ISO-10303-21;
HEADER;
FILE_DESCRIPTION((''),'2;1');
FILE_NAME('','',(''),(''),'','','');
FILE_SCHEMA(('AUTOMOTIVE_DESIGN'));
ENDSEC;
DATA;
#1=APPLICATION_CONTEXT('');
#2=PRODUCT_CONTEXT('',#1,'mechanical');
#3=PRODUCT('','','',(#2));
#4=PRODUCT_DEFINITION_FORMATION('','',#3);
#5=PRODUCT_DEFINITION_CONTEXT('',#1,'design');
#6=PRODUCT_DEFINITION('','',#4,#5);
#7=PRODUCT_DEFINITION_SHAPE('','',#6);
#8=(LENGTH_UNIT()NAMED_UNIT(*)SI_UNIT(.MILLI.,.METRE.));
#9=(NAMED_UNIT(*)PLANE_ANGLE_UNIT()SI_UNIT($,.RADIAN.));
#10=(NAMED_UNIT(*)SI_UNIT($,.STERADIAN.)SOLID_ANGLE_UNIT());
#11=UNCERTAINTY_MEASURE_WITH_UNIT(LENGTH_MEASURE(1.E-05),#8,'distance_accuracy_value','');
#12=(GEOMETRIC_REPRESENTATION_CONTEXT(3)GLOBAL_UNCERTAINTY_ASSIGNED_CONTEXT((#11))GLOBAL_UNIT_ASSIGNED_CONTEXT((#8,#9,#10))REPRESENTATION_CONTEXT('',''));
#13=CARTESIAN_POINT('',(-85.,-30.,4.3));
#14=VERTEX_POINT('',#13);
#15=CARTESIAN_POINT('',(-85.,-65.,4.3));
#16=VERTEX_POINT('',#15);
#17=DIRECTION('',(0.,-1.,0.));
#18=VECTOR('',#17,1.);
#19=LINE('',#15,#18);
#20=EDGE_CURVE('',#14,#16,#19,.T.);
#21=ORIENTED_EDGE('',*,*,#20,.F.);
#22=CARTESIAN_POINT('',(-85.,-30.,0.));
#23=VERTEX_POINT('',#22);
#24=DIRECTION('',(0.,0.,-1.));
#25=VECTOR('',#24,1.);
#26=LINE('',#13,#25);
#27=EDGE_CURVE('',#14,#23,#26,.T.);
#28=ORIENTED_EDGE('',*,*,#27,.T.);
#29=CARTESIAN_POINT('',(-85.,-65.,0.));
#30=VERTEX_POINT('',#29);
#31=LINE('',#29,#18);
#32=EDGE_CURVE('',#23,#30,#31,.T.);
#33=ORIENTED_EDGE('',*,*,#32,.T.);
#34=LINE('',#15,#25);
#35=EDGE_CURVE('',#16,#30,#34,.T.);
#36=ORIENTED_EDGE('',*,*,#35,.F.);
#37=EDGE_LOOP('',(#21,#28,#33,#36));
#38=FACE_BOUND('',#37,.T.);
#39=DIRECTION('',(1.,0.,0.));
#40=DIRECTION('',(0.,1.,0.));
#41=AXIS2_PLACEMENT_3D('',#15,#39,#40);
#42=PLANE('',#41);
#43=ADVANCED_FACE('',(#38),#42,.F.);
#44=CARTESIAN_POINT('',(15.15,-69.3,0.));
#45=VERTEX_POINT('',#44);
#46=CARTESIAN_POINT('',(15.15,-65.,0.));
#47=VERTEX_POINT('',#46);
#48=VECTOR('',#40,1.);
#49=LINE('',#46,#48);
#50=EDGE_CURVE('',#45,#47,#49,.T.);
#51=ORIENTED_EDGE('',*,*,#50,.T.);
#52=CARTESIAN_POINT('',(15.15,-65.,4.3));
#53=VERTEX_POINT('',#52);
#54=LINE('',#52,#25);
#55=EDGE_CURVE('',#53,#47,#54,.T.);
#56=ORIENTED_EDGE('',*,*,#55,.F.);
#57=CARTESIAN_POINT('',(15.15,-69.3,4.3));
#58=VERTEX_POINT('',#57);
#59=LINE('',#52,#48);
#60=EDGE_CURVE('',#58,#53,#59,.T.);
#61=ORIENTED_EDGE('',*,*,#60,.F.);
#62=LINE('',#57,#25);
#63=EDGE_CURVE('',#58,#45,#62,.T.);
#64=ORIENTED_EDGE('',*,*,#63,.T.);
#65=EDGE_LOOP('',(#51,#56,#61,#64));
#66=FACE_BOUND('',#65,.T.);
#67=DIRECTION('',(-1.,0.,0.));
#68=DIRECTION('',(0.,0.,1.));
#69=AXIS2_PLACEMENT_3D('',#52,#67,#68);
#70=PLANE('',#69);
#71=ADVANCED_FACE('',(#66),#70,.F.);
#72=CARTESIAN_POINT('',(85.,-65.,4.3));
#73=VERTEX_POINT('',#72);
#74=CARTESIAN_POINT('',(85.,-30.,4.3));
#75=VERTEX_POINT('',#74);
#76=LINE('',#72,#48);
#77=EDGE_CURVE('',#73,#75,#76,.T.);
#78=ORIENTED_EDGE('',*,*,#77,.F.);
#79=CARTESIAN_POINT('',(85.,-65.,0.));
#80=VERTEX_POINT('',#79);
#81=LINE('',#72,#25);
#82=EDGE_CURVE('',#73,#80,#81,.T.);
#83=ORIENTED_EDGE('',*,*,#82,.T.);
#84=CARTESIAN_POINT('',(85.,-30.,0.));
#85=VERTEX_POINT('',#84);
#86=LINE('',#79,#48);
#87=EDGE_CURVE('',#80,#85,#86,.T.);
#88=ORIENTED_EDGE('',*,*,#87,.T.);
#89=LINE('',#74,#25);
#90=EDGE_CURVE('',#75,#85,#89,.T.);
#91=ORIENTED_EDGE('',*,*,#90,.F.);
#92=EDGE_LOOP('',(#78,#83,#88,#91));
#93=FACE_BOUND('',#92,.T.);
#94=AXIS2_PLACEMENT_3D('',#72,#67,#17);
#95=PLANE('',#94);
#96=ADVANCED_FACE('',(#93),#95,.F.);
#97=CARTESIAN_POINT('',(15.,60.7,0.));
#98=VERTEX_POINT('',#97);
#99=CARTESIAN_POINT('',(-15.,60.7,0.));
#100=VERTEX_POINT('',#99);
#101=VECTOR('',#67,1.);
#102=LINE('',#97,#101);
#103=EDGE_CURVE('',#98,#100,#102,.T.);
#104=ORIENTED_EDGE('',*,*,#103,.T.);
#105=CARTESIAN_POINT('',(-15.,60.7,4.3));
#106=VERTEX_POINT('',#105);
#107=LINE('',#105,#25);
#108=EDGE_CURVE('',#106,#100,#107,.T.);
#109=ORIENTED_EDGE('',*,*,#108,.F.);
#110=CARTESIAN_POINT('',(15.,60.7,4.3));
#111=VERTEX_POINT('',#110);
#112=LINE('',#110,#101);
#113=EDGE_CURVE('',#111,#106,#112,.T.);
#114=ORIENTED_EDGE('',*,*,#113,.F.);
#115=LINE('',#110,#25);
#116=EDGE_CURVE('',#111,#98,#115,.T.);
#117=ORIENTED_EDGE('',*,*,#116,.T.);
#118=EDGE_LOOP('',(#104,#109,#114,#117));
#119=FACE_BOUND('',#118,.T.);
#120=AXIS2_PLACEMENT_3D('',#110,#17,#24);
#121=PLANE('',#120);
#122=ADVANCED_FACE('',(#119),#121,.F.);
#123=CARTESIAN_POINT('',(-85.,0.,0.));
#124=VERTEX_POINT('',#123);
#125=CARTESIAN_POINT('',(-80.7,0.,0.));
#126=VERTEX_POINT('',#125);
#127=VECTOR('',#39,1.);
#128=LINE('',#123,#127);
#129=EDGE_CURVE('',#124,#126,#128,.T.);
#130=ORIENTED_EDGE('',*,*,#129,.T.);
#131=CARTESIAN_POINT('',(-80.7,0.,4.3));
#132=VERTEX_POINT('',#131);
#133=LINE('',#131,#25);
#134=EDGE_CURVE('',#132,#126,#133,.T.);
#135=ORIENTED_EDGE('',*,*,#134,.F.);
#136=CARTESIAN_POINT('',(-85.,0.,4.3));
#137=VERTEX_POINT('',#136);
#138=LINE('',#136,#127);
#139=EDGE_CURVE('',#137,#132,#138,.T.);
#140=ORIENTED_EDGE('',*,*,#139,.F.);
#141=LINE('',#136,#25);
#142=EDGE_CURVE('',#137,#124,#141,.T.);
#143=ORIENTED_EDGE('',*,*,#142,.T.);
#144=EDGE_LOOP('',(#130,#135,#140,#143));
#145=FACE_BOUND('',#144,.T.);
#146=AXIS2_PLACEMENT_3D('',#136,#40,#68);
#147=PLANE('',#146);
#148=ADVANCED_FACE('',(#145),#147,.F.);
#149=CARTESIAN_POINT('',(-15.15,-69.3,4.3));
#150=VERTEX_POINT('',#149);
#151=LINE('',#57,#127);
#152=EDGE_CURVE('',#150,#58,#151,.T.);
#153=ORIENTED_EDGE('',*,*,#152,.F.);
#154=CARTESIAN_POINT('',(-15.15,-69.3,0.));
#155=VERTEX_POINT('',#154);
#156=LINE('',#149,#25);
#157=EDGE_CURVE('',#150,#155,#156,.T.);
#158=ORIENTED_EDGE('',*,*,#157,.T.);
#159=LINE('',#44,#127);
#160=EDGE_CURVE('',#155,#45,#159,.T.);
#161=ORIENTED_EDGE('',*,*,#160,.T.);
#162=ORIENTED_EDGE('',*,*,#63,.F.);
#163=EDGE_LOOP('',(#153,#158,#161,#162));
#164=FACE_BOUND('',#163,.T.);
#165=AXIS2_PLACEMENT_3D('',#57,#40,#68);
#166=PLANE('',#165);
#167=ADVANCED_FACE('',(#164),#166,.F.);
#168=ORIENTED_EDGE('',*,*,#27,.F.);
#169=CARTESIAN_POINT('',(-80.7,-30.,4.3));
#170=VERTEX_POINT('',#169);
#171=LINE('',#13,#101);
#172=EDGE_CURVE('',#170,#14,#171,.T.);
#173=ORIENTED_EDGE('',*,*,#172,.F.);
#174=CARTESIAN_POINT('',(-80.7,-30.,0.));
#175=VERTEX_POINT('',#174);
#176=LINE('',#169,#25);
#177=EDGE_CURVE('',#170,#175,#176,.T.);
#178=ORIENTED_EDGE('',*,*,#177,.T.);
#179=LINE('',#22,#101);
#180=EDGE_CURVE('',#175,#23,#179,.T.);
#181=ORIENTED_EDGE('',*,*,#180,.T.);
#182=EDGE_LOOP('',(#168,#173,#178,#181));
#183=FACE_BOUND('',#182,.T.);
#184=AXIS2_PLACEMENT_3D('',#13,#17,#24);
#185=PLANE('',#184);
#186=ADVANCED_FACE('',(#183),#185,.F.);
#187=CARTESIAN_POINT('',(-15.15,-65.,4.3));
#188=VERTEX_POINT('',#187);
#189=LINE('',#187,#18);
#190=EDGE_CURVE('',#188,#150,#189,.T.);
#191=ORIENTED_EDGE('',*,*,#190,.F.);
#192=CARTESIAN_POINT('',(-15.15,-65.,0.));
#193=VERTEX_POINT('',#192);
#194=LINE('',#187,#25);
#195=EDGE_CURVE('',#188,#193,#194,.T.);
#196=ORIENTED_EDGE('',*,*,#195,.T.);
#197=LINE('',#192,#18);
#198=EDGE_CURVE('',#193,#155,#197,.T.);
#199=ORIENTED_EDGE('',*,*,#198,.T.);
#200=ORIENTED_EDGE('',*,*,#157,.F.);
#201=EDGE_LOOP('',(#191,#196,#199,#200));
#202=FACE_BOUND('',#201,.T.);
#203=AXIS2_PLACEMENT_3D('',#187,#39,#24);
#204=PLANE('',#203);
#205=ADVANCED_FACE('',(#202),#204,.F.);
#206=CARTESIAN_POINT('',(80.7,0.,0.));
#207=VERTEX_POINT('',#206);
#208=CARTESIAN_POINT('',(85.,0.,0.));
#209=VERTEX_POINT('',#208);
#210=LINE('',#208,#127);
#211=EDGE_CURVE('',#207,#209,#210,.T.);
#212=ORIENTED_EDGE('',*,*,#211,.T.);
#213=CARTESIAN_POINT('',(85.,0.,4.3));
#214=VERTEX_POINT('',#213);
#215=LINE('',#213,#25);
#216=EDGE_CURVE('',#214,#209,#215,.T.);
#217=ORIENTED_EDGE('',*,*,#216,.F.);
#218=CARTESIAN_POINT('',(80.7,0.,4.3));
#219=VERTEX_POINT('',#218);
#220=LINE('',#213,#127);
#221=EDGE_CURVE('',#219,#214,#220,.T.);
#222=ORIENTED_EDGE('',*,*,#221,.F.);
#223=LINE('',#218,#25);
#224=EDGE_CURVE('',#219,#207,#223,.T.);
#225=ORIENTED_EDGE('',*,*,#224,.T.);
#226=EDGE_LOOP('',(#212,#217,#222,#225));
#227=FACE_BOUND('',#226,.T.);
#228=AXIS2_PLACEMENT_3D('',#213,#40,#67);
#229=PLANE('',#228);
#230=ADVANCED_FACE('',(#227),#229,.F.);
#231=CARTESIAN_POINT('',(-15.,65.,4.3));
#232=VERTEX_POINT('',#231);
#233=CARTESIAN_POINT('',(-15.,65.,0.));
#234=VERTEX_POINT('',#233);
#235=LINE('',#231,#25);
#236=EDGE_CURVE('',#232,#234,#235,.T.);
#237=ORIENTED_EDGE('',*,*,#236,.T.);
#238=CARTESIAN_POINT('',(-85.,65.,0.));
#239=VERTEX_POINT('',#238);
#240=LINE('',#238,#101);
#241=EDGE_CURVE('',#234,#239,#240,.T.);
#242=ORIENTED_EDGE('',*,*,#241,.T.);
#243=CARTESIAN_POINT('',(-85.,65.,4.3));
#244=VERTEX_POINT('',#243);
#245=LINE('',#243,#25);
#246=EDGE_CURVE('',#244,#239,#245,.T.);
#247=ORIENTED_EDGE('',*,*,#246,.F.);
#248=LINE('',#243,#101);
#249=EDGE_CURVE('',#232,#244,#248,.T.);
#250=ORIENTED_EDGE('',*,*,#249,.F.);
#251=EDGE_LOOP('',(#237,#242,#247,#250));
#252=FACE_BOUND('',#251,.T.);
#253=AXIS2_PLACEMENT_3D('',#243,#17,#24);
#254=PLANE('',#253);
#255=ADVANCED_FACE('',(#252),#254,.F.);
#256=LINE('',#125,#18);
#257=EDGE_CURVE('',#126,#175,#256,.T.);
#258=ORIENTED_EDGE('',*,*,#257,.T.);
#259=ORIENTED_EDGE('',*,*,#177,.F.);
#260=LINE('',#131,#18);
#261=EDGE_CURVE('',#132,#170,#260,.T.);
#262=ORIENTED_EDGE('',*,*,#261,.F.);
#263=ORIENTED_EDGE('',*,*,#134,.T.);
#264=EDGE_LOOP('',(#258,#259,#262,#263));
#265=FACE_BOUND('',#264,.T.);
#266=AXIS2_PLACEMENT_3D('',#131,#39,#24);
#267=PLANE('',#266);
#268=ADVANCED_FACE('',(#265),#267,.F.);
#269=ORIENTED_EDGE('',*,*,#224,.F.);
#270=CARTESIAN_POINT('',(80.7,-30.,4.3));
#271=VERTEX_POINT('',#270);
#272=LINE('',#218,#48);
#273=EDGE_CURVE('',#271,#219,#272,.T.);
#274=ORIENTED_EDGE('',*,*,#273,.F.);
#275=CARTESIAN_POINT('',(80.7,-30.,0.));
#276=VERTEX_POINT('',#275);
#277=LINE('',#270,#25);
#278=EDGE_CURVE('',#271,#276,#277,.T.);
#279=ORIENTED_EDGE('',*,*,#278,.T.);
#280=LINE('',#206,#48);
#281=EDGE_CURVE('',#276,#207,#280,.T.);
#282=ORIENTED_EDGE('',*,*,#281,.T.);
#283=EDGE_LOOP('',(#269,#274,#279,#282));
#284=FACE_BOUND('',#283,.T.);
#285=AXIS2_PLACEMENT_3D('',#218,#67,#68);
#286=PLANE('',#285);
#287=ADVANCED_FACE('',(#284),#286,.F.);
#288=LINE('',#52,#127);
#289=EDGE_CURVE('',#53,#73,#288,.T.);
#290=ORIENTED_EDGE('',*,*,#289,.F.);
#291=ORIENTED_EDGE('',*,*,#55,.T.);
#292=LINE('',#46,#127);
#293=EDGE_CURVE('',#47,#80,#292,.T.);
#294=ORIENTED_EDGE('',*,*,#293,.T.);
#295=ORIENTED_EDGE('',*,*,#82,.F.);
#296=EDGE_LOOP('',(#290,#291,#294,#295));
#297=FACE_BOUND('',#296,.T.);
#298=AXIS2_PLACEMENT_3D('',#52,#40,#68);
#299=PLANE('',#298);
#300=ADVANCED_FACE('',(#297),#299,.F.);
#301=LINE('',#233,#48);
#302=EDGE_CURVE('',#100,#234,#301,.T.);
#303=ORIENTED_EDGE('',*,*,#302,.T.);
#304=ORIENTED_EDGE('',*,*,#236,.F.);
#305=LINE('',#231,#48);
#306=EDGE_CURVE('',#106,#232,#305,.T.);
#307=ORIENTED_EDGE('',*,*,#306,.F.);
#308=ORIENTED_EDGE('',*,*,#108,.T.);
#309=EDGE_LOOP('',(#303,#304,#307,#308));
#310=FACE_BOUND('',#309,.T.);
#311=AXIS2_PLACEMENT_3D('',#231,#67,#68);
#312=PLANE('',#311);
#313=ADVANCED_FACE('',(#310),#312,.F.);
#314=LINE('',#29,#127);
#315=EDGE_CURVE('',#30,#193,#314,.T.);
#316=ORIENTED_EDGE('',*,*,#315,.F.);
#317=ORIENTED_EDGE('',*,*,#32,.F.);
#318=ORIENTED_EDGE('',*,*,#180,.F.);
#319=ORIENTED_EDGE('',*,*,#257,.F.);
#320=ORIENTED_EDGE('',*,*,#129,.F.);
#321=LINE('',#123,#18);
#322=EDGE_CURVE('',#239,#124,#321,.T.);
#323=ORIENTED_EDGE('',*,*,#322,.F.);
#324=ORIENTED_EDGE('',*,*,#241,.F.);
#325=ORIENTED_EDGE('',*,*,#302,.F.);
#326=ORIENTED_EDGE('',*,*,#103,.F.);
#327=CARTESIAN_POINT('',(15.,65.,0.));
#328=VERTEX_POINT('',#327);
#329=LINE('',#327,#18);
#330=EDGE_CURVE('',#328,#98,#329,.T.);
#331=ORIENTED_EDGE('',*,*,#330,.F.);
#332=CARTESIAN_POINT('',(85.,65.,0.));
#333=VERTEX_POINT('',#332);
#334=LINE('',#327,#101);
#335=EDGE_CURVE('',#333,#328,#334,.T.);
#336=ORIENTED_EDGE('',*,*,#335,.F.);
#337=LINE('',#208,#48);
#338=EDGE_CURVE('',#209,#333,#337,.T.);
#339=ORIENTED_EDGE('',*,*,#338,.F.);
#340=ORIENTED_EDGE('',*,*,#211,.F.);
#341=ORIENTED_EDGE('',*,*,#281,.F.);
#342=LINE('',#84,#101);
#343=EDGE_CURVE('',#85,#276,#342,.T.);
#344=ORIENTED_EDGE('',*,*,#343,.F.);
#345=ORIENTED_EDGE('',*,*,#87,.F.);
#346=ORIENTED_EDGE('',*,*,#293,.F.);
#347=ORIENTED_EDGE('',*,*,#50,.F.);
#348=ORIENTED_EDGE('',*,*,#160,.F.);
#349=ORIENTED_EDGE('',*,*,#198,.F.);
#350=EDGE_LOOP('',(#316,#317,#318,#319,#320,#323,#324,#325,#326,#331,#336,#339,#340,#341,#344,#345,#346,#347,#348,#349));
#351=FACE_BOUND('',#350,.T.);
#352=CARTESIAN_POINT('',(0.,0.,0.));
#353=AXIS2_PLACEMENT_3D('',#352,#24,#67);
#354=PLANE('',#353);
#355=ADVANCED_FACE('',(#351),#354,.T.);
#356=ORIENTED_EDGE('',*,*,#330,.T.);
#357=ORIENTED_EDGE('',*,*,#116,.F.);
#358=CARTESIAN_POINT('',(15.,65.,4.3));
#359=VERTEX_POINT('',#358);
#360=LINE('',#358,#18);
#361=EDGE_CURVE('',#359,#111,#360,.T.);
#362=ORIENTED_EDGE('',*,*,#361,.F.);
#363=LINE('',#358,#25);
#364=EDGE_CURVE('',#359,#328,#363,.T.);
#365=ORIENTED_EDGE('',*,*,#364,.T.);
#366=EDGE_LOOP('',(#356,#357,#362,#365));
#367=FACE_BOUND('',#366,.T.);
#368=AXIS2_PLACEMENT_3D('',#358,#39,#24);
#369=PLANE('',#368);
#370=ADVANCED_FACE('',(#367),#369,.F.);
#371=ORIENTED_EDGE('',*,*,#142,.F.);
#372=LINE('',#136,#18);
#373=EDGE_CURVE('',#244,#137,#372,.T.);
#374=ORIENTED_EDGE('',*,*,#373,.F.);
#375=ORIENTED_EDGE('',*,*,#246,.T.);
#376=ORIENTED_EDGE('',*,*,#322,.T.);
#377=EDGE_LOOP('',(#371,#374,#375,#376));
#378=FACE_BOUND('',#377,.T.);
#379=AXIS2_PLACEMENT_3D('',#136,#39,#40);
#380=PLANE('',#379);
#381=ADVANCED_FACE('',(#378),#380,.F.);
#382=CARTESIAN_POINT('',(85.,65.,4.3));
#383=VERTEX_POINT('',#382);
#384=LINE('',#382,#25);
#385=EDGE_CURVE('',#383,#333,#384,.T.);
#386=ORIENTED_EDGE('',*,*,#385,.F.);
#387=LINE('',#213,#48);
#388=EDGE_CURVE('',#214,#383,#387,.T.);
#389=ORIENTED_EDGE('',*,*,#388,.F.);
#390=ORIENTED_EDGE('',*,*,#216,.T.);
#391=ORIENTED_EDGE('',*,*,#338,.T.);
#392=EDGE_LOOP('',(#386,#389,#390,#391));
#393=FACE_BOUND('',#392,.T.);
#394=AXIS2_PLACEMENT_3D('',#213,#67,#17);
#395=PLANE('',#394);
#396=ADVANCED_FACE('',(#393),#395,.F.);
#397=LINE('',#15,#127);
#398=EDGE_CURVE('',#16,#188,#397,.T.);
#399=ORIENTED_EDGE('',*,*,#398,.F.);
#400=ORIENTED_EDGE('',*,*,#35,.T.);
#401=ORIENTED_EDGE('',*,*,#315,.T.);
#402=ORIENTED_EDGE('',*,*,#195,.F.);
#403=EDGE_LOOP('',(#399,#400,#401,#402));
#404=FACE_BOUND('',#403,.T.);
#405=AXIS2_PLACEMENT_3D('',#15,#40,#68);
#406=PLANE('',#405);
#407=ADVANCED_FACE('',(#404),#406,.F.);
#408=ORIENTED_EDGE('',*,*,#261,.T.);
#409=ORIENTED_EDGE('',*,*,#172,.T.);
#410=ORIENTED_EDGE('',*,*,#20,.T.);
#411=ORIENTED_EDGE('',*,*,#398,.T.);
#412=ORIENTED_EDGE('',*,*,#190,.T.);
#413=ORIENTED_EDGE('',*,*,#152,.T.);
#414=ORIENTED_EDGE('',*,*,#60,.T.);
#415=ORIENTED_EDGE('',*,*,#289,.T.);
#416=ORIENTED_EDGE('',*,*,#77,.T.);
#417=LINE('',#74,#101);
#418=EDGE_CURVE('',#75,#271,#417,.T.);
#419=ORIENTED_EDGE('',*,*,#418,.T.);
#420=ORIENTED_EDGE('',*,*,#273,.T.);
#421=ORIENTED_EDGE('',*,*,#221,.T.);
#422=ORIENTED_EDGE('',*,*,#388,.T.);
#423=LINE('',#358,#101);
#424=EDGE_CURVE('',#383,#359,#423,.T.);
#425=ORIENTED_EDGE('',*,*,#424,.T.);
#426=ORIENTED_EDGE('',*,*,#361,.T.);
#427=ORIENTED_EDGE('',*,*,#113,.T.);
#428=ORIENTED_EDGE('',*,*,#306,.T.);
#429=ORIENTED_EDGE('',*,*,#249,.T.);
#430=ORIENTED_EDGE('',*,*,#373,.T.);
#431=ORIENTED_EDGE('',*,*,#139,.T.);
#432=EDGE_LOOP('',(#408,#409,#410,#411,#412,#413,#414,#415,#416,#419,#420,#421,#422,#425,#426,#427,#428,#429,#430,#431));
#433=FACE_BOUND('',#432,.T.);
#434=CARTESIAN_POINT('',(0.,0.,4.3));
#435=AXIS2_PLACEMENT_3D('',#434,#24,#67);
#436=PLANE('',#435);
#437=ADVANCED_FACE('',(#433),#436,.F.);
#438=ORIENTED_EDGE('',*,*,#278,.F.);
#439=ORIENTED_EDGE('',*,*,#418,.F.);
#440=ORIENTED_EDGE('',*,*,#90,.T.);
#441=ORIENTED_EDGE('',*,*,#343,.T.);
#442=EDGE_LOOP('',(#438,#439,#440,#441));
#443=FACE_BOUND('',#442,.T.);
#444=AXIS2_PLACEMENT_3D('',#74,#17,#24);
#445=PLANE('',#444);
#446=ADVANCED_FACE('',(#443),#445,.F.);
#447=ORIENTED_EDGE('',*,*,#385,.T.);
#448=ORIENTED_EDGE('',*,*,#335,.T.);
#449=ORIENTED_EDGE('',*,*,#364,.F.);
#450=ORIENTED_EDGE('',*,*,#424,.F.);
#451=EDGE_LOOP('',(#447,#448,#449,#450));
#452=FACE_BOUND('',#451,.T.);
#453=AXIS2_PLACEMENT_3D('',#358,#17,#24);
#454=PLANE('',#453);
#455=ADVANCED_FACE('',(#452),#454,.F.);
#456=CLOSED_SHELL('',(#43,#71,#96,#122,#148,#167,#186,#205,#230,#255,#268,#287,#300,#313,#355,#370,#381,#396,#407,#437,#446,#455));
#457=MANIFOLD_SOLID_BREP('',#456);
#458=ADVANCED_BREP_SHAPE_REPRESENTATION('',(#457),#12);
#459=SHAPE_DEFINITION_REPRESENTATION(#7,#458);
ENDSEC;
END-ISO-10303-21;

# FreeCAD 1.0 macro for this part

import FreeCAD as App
import Part
import Sketcher

V = App.Vector
Q = App.Units.Quantity

doc = App.newDocument("Part")
body = doc.addObject("PartDesign::Body", "Body")

sketch1 = body.newObject("Sketcher::SketchObject", "Sketch")
sketch1.AttachmentSupport = (doc.getObject("XY_Plane"), [""])
sketch1.MapMode = "FlatFace"
sketch1.addGeometry(Part.LineSegment(V(85, 65, 0), V(15, 65, 0)), False)
sketch1.addGeometry(Part.LineSegment(V(15, 65, 0), V(15, 60.7, 0)), False)
sketch1.addGeometry(Part.LineSegment(V(15, 60.7, 0), V(-15, 60.7, 0)), False)
sketch1.addGeometry(Part.LineSegment(V(-15, 60.7, 0), V(-15, 65, 0)), False)
sketch1.addGeometry(Part.LineSegment(V(-15, 65, 0), V(-85, 65, 0)), False)
sketch1.addGeometry(Part.LineSegment(V(-85, 65, 0), V(-85, 0, 0)), False)
sketch1.addGeometry(Part.LineSegment(V(-85, 0, 0), V(-80.7, 0, 0)), False)
sketch1.addGeometry(Part.LineSegment(V(-80.7, 0, 0), V(-80.7, -30, 0)), False)
sketch1.addGeometry(Part.LineSegment(V(-80.7, -30, 0), V(-85, -30, 0)), False)
sketch1.addGeometry(Part.LineSegment(V(-85, -30, 0), V(-85, -65, 0)), False)
sketch1.addGeometry(Part.LineSegment(V(-85, -65, 0), V(-15.15, -65, 0)), False)
sketch1.addGeometry(Part.LineSegment(V(-15.15, -65, 0), V(-15.15, -69.3, 0)), False)
sketch1.addGeometry(Part.LineSegment(V(-15.15, -69.3, 0), V(15.15, -69.3, 0)), False)
sketch1.addGeometry(Part.LineSegment(V(15.15, -69.3, 0), V(15.15, -65, 0)), False)
sketch1.addGeometry(Part.LineSegment(V(15.15, -65, 0), V(85, -65, 0)), False)
sketch1.addGeometry(Part.LineSegment(V(85, -65, 0), V(85, -30, 0)), False)
sketch1.addGeometry(Part.LineSegment(V(85, -30, 0), V(80.7, -30, 0)), False)
sketch1.addGeometry(Part.LineSegment(V(80.7, -30, 0), V(80.7, 0, 0)), False)
sketch1.addGeometry(Part.LineSegment(V(80.7, 0, 0), V(85, 0, 0)), False)
sketch1.addGeometry(Part.LineSegment(V(85, 0, 0), V(85, 65, 0)), False)
sketch1.addConstraint(Sketcher.Constraint("Coincident", 0, 2, 1, 1))
sketch1.addConstraint(Sketcher.Constraint("Coincident", 1, 2, 2, 1))
sketch1.addConstraint(Sketcher.Constraint("Coincident", 2, 2, 3, 1))
sketch1.addConstraint(Sketcher.Constraint("Coincident", 3, 2, 4, 1))
sketch1.addConstraint(Sketcher.Constraint("Coincident", 4, 2, 5, 1))
sketch1.addConstraint(Sketcher.Constraint("Coincident", 5, 2, 6, 1))
sketch1.addConstraint(Sketcher.Constraint("Coincident", 6, 2, 7, 1))
sketch1.addConstraint(Sketcher.Constraint("Coincident", 7, 2, 8, 1))
sketch1.addConstraint(Sketcher.Constraint("Coincident", 8, 2, 9, 1))
sketch1.addConstraint(Sketcher.Constraint("Coincident", 9, 2, 10, 1))
sketch1.addConstraint(Sketcher.Constraint("Coincident", 10, 2, 11, 1))
sketch1.addConstraint(Sketcher.Constraint("Coincident", 11, 2, 12, 1))
sketch1.addConstraint(Sketcher.Constraint("Coincident", 12, 2, 13, 1))
sketch1.addConstraint(Sketcher.Constraint("Coincident", 13, 2, 14, 1))
sketch1.addConstraint(Sketcher.Constraint("Coincident", 14, 2, 15, 1))
sketch1.addConstraint(Sketcher.Constraint("Coincident", 15, 2, 16, 1))
sketch1.addConstraint(Sketcher.Constraint("Coincident", 16, 2, 17, 1))
sketch1.addConstraint(Sketcher.Constraint("Coincident", 17, 2, 18, 1))
sketch1.addConstraint(Sketcher.Constraint("Coincident", 18, 2, 19, 1))
sketch1.addConstraint(Sketcher.Constraint("Coincident", 19, 2, 0, 1))
sketch1.addConstraint(Sketcher.Constraint("Horizontal", 0))
sketch1.addConstraint(Sketcher.Constraint("Vertical", 1))
sketch1.addConstraint(Sketcher.Constraint("Horizontal", 2))
sketch1.addConstraint(Sketcher.Constraint("Vertical", 3))
sketch1.addConstraint(Sketcher.Constraint("Horizontal", 4))
sketch1.addConstraint(Sketcher.Constraint("Vertical", 5))
sketch1.addConstraint(Sketcher.Constraint("Horizontal", 6))
sketch1.addConstraint(Sketcher.Constraint("Vertical", 7))
sketch1.addConstraint(Sketcher.Constraint("Horizontal", 8))
sketch1.addConstraint(Sketcher.Constraint("Vertical", 9))
sketch1.addConstraint(Sketcher.Constraint("Horizontal", 10))
sketch1.addConstraint(Sketcher.Constraint("Vertical", 11))
sketch1.addConstraint(Sketcher.Constraint("Horizontal", 12))
sketch1.addConstraint(Sketcher.Constraint("Vertical", 13))
sketch1.addConstraint(Sketcher.Constraint("Horizontal", 14))
sketch1.addConstraint(Sketcher.Constraint("Vertical", 15))
sketch1.addConstraint(Sketcher.Constraint("Horizontal", 16))
sketch1.addConstraint(Sketcher.Constraint("Vertical", 17))
sketch1.addConstraint(Sketcher.Constraint("Horizontal", 18))
sketch1.addConstraint(Sketcher.Constraint("Vertical", 19))
sketch1.addConstraint(Sketcher.Constraint("Symmetric", 4, 2, 14, 2, -1, 1))
sketch1.addConstraint(Sketcher.Constraint("Symmetric", 6, 2, 17, 2, -1, 1))
sketch1.addConstraint(Sketcher.Constraint("Symmetric", 9, 2, 19, 2, -1, 1))
sketch1.addConstraint(Sketcher.Constraint("Symmetric", 0, 2, 3, 2, -2))
sketch1.addConstraint(Sketcher.Constraint("Symmetric", 8, 2, 15, 2, -2))
sketch1.addConstraint(Sketcher.Constraint("PointOnObject", 5, 2, -1))
sketch1.addConstraint(Sketcher.Constraint("Equal", 10, 14))
sketch1.addConstraint(Sketcher.Constraint("Equal", 18, 1))
sketch1.addConstraint(Sketcher.Constraint("Equal", 2, 7))
sketch1.addConstraint(Sketcher.Constraint("Equal", 3, 11))
sketch1.addConstraint(Sketcher.Constraint("DistanceX", 0, 2, 0, 1, Q("70 mm")))
sketch1.addConstraint(Sketcher.Constraint("DistanceX", 2, 2, 2, 1, Q("30 mm")))
sketch1.addConstraint(Sketcher.Constraint("DistanceY", 5, 2, 5, 1, Q("65 mm")))
sketch1.addConstraint(Sketcher.Constraint("DistanceX", 6, 1, 6, 2, Q("4.3 mm")))
sketch1.addConstraint(Sketcher.Constraint("DistanceX", 12, 1, 12, 2, Q("30.3 mm")))
pad1 = body.newObject("PartDesign::Pad", "Pad")
pad1.Profile = sketch1
pad1.Length = 4.3

doc.recompute()
